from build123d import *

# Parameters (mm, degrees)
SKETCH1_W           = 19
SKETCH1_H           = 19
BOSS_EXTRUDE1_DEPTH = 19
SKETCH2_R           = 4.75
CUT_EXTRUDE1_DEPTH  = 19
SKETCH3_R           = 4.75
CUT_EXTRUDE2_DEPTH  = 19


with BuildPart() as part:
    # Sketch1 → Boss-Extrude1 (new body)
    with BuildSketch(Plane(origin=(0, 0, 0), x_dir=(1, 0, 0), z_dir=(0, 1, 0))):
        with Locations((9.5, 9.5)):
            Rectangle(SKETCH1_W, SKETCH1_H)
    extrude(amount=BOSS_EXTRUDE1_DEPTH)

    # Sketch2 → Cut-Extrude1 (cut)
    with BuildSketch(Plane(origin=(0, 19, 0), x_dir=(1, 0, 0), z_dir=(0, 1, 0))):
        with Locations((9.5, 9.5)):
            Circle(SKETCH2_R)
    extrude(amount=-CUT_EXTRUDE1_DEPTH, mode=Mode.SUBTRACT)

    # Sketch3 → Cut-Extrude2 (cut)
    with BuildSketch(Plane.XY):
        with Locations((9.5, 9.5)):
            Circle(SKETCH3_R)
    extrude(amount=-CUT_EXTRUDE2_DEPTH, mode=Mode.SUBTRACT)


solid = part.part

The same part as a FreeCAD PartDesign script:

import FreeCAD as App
import Part
import Sketcher

V = App.Vector
Q = App.Units.Quantity

doc = App.newDocument("Part")
params = doc.addObject("Spreadsheet::Sheet", "Params")
for row, (alias, value) in enumerate([
    ("sketch1_width", "19 mm"),
    ("pad1_length", "19 mm"),
    ("sketch2_diameter", "9.5 mm"),
    ("pocket1_length", "19 mm"),
    ("sketch3_diameter", "9.5 mm"),
    ("pocket2_length", "19 mm"),
], start=1):
    params.set(f"A{row}", alias)
    params.set(f"B{row}", "=" + value)
    params.setAlias(f"B{row}", alias)

body = doc.addObject("PartDesign::Body", "Body")

# Sketch on XZ plane
sketch1 = body.newObject("Sketcher::SketchObject", "Sketch")
sketch1.AttachmentSupport = (doc.getObject("XZ_Plane"), [""])
sketch1.MapMode = "FlatFace"
sketch1.addGeometry([
    Part.LineSegment(V(0, -19, 0), V(0, 0, 0)),
    Part.LineSegment(V(0, 0, 0), V(19, 0, 0)),
    Part.LineSegment(V(19, 0, 0), V(19, -19, 0)),
    Part.LineSegment(V(19, -19, 0), V(0, -19, 0)),
], False)
sketch1.addConstraint([
    Sketcher.Constraint("Coincident", 0, 2, 1, 1),
    Sketcher.Constraint("Coincident", 1, 2, 2, 1),
    Sketcher.Constraint("Coincident", 2, 2, 3, 1),
    Sketcher.Constraint("Coincident", 3, 2, 0, 1),
    Sketcher.Constraint("Vertical", 0),
    Sketcher.Constraint("Horizontal", 1),
    Sketcher.Constraint("Vertical", 2),
    Sketcher.Constraint("Horizontal", 3),
    Sketcher.Constraint("Coincident", 0, 2, -1, 1),
    Sketcher.Constraint("Equal", 3, 0),
    Sketcher.Constraint("DistanceX", 1, 1, 1, 2, Q("19 mm")),
])
sketch1.setExpression("Constraints[10]", "Params.sketch1_width")
pad1 = body.newObject("PartDesign::Pad", "Pad")
pad1.Profile = sketch1
pad1.setExpression("Length", "Params.pad1_length")
pad1.Reversed = True

# Sketch on XZ plane
sketch2 = body.newObject("Sketcher::SketchObject", "Sketch001")
sketch2.AttachmentSupport = (doc.getObject("XZ_Plane"), [""])
sketch2.MapMode = "FlatFace"
sketch2.AttachmentOffset = App.Placement(V(0, 0, -19), App.Rotation())
sketch2.addGeometry(Part.Circle(V(9.5, -9.5, 0), V(0, 0, 1), 4.8), False)
sketch2.addConstraint([
    Sketcher.Constraint("Diameter", 0, Q("9.5 mm")),
    Sketcher.Constraint("DistanceX", -1, 1, 0, 3, Q("9.5 mm")),
    Sketcher.Constraint("DistanceY", 0, 3, -1, 1, Q("9.5 mm")),
])
sketch2.setExpression("Constraints[0]", "Params.sketch2_diameter")
pocket1 = body.newObject("PartDesign::Pocket", "Pocket")
pocket1.Profile = sketch2
pocket1.setExpression("Length", "Params.pocket1_length")
pocket1.Reversed = True

# Sketch on XY plane
sketch3 = body.newObject("Sketcher::SketchObject", "Sketch002")
sketch3.AttachmentSupport = (doc.getObject("XY_Plane"), [""])
sketch3.MapMode = "FlatFace"
sketch3.addGeometry(Part.Circle(V(9.5, 9.5, 0), V(0, 0, 1), 4.8), False)
sketch3.addConstraint([
    Sketcher.Constraint("Diameter", 0, Q("9.5 mm")),
    Sketcher.Constraint("DistanceX", -1, 1, 0, 3, Q("9.5 mm")),
    Sketcher.Constraint("DistanceY", -1, 1, 0, 3, Q("9.5 mm")),
])
sketch3.setExpression("Constraints[0]", "Params.sketch3_diameter")
pocket2 = body.newObject("PartDesign::Pocket", "Pocket001")
pocket2.Profile = sketch3
pocket2.setExpression("Length", "Params.pocket2_length")

doc.recompute()
